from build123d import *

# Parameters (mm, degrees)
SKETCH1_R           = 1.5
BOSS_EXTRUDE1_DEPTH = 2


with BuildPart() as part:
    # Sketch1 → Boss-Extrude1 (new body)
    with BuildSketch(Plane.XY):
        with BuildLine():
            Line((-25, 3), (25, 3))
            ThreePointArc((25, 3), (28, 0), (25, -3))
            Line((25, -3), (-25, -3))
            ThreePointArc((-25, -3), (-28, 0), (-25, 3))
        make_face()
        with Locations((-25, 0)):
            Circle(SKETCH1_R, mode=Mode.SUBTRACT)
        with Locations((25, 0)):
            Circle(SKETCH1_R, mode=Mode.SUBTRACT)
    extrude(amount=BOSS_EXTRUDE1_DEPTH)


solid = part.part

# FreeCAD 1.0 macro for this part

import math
import FreeCAD as App
import Part
import Sketcher
Q = App.Units.Quantity

doc = App.newDocument("Part")
body = doc.addObject("PartDesign::Body", "Body")

# Sketch on XY plane
sketch1 = body.newObject("Sketcher::SketchObject", "Sketch")
sketch1.AttachmentSupport = (doc.getObject("XY_Plane"), [""])
sketch1.MapMode = "FlatFace"
sketch1.addGeometry([
    Part.LineSegment(App.Vector(25, 3, 0), App.Vector(-25, 3, 0)),  # 0
    Part.ArcOfCircle(Part.Circle(App.Vector(-25, 0, 0), App.Vector(0, 0, 1), 3), math.radians(90), math.radians(270)),  # 1
    Part.LineSegment(App.Vector(-25, -3, 0), App.Vector(25, -3, 0)),  # 2
    Part.ArcOfCircle(Part.Circle(App.Vector(25, 0, 0), App.Vector(0, 0, 1), 3), math.radians(-90), math.radians(90)),  # 3
    Part.Circle(App.Vector(25, 0, 0), App.Vector(0, 0, 1), 1.5),  # 4
    Part.Circle(App.Vector(-25, 0, 0), App.Vector(0, 0, 1), 1.5),  # 5
], False)
sketch1.addConstraint([
    Sketcher.Constraint("Tangent", 0, 2, 1, 1),
    Sketcher.Constraint("Tangent", 1, 2, 2, 1),
    Sketcher.Constraint("Tangent", 2, 2, 3, 1),
    Sketcher.Constraint("Tangent", 3, 2, 0, 1),
    Sketcher.Constraint("Horizontal", 0),
    Sketcher.Constraint("Horizontal", 2),
    Sketcher.Constraint("Coincident", 4, 3, 3, 3),
    Sketcher.Constraint("Coincident", 5, 3, 1, 3),
    Sketcher.Constraint("Equal", 4, 5),
    Sketcher.Constraint("Symmetric", 1, 3, 3, 3, -1, 1),
    Sketcher.Constraint("Diameter", 4, Q("3 mm")),
    Sketcher.Constraint("Radius", 1, Q("3 mm")),
    Sketcher.Constraint("DistanceX", 0, 2, 0, 1, Q("50 mm")),
])
pad1 = body.newObject("PartDesign::Pad", "Pad")
pad1.Profile = sketch1
pad1.Length = 2

doc.recompute()
